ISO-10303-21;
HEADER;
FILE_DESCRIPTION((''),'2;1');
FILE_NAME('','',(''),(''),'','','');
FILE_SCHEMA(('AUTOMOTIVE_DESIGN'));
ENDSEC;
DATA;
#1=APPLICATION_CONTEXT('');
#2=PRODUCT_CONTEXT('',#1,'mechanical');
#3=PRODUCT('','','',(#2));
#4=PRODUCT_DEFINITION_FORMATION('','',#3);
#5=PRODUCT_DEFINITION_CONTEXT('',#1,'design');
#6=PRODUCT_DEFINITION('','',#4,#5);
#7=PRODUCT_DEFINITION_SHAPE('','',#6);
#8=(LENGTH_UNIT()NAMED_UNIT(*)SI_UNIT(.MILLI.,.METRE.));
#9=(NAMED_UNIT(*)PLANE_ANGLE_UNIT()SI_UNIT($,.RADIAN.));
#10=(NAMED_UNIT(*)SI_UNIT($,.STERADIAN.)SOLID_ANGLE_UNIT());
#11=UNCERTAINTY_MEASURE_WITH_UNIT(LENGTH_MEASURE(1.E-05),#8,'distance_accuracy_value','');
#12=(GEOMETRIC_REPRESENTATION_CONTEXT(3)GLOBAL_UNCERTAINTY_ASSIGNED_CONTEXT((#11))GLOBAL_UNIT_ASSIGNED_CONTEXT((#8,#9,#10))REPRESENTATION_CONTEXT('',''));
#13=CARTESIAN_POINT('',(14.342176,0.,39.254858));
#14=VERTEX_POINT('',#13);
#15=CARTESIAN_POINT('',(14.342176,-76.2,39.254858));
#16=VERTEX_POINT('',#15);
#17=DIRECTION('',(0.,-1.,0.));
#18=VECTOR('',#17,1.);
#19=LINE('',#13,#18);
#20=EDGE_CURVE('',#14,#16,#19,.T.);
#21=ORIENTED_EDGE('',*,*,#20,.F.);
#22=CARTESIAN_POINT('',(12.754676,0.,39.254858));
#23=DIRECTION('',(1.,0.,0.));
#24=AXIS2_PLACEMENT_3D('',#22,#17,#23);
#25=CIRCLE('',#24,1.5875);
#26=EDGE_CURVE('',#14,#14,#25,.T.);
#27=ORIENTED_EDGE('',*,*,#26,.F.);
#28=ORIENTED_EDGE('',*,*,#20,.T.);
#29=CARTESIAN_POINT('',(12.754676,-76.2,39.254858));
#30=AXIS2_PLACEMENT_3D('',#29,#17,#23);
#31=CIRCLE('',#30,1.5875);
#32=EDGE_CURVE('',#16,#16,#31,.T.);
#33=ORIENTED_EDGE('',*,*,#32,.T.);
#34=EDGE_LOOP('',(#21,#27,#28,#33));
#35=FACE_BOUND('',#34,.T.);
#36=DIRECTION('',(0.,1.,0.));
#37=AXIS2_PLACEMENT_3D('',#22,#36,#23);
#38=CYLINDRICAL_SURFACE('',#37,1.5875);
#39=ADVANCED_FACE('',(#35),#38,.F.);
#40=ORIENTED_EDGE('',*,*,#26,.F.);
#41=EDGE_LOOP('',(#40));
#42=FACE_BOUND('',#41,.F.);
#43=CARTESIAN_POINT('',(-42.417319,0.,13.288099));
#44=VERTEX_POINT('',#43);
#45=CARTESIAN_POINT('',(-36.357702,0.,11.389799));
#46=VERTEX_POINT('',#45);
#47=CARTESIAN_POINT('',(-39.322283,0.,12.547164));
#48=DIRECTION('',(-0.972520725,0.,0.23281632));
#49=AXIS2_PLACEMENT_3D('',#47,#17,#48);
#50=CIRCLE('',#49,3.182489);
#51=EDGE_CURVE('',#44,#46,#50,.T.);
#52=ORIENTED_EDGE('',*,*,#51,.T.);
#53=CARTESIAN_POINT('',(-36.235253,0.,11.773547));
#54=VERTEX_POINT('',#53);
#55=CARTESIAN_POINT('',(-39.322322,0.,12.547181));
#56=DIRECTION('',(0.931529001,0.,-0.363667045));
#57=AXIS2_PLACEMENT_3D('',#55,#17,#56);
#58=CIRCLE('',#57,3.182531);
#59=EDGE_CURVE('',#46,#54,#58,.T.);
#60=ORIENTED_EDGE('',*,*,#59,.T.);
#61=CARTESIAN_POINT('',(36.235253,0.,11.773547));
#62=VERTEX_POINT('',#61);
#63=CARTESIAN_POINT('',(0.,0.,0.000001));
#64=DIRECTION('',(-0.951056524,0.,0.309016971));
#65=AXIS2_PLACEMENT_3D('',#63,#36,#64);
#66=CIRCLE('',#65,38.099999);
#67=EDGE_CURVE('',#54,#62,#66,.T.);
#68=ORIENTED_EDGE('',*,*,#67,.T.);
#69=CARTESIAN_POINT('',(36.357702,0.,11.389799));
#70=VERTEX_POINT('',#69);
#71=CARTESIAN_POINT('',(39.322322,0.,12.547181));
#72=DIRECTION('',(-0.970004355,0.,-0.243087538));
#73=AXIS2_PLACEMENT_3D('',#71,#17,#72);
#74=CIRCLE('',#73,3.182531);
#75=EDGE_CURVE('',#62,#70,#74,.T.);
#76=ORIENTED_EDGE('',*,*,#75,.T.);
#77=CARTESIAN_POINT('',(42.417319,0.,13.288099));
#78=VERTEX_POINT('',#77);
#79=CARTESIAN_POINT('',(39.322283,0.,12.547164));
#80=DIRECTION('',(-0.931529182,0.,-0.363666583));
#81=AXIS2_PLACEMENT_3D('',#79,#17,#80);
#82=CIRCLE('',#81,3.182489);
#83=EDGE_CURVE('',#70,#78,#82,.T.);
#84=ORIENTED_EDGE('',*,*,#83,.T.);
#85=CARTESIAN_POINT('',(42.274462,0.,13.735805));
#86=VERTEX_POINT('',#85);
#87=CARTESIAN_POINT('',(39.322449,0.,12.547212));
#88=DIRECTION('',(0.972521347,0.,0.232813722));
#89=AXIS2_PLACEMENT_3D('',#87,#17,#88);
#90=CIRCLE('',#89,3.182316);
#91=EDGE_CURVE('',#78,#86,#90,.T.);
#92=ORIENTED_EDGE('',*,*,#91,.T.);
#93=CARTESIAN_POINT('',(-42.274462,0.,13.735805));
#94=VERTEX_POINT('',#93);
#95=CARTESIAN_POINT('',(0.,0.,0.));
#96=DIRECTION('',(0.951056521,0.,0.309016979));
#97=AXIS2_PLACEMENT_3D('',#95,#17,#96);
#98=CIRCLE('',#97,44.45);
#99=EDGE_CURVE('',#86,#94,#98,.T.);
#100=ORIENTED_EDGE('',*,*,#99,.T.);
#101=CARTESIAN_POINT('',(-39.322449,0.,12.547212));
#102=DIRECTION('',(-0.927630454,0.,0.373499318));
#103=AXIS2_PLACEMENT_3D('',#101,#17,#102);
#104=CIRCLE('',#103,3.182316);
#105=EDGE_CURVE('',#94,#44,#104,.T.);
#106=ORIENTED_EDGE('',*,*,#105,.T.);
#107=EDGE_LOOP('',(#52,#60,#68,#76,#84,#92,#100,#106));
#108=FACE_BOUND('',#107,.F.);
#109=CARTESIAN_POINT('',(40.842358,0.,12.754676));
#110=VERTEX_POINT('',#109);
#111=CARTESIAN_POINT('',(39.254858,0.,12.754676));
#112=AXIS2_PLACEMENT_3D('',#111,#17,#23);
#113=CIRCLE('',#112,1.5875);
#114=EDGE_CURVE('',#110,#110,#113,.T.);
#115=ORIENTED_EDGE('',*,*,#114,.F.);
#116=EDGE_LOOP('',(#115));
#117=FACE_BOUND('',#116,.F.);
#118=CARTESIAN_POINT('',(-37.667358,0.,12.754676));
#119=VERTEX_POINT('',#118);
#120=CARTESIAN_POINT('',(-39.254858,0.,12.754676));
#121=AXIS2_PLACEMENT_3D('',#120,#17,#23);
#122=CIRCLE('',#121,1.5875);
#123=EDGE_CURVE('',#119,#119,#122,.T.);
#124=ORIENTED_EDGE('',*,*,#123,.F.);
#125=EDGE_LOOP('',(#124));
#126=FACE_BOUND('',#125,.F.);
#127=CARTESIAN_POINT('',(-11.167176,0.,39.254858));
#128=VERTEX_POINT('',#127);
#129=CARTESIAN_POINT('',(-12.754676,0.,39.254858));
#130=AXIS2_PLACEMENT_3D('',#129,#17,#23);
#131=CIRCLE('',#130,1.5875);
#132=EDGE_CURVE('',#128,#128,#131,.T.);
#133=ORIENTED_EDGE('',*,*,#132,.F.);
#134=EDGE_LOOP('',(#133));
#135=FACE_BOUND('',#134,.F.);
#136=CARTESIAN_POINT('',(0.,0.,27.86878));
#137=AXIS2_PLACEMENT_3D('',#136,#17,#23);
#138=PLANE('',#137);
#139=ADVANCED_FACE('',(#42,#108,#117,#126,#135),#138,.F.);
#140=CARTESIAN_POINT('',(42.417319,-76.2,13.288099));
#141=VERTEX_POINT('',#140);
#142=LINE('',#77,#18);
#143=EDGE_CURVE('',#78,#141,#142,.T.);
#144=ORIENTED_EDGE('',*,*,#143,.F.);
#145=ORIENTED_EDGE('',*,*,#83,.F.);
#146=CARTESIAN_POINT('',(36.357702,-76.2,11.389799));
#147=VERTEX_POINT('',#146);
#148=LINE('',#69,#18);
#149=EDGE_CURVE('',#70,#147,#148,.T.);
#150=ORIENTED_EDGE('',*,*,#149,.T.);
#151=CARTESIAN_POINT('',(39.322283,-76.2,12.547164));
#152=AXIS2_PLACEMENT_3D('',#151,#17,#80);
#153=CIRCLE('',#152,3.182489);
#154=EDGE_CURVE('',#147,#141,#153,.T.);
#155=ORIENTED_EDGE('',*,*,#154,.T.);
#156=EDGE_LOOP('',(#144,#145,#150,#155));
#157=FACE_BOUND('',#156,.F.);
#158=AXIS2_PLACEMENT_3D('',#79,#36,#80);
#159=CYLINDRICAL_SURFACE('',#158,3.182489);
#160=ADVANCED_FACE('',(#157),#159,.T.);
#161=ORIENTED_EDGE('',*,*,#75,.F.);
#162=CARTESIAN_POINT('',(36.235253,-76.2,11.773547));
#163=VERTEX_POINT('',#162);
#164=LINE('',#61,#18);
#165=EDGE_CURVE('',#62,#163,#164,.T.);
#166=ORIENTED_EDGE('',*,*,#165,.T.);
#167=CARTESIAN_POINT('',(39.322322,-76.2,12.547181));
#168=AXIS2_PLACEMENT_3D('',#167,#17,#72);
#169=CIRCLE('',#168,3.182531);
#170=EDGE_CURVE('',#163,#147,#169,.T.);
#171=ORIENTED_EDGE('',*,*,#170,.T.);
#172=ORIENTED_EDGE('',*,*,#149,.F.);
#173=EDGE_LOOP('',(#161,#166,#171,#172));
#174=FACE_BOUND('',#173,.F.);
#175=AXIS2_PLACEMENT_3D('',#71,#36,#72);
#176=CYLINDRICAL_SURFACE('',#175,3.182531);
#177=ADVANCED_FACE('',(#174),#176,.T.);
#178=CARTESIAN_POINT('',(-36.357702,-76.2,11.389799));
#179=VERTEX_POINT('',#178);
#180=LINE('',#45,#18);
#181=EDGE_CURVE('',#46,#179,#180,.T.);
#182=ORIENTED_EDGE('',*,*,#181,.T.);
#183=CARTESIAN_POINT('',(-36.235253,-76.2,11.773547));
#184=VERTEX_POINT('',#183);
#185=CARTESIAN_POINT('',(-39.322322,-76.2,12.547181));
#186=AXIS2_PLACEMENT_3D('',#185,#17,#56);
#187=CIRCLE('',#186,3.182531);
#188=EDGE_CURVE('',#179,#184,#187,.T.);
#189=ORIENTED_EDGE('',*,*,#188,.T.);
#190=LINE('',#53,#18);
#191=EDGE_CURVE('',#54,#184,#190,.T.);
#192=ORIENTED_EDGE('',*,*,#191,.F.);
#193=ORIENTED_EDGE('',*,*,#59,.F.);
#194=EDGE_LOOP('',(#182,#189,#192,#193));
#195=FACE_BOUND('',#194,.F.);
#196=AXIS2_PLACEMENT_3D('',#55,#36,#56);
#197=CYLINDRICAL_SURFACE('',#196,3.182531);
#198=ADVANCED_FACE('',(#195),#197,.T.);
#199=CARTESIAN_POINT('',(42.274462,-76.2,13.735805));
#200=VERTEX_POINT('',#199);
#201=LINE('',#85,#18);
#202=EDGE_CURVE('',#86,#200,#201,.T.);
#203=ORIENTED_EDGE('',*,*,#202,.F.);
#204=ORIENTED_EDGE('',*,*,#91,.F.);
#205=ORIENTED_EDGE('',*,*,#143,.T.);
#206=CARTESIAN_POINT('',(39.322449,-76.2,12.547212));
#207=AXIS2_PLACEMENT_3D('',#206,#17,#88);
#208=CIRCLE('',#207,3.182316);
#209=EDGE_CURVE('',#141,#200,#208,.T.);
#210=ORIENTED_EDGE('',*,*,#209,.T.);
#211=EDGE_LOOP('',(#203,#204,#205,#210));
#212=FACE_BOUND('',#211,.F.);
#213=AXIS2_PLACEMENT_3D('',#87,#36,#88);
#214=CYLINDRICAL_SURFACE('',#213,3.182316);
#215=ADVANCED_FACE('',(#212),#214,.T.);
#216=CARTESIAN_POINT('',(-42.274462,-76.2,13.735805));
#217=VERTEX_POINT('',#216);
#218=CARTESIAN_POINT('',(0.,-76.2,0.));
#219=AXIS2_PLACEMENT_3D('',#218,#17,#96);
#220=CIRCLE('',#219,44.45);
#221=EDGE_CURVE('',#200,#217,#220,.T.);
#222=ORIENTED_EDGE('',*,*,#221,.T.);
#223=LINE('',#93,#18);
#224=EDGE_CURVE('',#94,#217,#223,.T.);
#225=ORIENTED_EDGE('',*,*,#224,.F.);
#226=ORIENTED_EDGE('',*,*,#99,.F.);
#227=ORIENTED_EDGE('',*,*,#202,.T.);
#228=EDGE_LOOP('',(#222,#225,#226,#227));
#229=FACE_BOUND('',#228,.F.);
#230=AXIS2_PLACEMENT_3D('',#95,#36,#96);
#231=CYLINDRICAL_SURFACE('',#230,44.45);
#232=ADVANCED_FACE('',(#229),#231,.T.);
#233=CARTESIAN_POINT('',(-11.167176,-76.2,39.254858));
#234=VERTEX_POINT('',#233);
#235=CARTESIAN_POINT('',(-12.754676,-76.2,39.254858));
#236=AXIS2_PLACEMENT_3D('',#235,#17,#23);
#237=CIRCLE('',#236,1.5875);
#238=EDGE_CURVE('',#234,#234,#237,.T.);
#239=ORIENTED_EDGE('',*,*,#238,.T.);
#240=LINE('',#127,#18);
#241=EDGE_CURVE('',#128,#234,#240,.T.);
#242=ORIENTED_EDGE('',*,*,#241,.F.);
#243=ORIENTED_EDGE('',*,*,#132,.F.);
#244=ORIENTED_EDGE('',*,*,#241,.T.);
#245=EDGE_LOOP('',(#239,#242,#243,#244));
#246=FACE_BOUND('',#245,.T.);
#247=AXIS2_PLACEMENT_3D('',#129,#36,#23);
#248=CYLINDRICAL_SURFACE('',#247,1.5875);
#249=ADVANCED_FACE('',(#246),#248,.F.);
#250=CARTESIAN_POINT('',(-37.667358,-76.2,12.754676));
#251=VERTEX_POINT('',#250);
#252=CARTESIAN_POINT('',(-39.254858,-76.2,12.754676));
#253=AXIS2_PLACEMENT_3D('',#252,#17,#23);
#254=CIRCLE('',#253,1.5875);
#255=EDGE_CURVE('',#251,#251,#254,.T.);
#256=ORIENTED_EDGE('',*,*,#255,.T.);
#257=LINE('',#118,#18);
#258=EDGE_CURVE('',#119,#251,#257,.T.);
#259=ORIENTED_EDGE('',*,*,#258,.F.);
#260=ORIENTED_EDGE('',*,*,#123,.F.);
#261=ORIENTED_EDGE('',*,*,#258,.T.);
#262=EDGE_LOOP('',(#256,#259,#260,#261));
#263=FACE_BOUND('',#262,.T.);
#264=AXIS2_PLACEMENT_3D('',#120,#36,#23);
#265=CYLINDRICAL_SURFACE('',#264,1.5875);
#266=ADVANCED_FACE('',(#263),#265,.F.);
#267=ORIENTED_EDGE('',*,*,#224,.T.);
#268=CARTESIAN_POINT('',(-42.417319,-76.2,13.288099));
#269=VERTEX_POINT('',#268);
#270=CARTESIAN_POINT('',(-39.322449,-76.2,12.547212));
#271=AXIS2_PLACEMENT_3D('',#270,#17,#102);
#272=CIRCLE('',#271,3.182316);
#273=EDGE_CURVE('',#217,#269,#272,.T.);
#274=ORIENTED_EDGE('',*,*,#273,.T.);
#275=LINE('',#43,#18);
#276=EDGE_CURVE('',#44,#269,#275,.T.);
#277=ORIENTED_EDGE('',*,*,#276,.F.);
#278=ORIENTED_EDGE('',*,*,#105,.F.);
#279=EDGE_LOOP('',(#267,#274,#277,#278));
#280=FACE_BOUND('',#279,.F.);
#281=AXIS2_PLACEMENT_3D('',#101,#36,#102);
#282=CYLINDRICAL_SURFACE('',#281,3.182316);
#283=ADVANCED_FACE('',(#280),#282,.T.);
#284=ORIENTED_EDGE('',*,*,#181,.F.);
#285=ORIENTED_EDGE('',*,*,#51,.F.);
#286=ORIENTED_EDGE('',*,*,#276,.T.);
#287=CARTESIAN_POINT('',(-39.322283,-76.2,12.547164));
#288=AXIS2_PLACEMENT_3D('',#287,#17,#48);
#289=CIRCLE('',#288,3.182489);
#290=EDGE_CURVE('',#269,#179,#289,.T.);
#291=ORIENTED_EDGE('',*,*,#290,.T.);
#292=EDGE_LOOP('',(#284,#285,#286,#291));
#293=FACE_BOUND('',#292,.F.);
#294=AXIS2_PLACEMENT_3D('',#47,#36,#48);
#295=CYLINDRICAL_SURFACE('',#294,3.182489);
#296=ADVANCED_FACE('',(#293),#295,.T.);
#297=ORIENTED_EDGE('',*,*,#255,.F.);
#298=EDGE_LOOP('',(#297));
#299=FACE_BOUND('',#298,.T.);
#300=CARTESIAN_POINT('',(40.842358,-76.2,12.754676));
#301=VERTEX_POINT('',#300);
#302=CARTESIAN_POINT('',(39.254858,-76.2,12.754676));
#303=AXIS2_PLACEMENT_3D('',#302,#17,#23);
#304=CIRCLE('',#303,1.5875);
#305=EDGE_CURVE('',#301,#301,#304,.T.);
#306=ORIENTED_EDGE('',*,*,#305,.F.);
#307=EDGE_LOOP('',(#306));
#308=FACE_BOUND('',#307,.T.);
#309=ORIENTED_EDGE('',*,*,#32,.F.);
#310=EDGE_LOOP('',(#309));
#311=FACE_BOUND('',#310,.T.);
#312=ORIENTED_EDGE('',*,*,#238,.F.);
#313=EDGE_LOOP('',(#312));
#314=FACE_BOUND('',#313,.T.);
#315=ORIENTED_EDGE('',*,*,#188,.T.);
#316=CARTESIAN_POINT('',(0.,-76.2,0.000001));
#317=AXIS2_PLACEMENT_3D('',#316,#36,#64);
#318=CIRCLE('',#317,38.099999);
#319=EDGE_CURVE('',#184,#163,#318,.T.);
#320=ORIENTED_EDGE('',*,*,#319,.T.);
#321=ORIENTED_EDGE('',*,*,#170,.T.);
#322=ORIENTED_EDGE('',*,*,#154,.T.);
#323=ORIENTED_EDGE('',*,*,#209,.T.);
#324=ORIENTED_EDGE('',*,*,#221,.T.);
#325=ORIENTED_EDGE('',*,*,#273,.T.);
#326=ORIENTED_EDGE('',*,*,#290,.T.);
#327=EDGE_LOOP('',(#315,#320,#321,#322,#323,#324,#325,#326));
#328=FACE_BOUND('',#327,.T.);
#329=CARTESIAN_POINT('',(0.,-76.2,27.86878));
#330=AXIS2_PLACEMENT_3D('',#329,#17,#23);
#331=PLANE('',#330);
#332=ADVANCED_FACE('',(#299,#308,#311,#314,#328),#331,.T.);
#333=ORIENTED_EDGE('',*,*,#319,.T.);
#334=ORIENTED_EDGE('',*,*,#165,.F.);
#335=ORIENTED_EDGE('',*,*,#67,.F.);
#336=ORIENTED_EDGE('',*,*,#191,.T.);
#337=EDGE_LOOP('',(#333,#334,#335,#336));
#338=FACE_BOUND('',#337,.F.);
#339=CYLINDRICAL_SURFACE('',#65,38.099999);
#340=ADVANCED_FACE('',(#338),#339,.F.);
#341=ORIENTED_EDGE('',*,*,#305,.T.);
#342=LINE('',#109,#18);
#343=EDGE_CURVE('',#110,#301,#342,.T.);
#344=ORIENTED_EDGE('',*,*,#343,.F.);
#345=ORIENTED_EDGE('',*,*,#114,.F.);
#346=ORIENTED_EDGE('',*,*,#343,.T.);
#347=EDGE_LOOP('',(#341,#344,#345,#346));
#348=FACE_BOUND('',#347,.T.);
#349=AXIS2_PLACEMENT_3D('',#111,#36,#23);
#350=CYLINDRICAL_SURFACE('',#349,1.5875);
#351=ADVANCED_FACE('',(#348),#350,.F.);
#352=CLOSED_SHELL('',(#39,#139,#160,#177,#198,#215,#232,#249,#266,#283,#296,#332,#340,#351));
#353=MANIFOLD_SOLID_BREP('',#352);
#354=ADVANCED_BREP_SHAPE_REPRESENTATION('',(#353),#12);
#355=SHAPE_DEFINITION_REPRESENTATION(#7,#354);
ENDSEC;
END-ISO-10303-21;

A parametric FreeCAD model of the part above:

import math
import FreeCAD as App
import Part
import Sketcher
Q = App.Units.Quantity

doc = App.newDocument("Part")
body = doc.addObject("PartDesign::Body", "Body")

sketch1 = body.newObject("Sketcher::SketchObject", "Sketch")
sketch1.AttachmentSupport = (doc.getObject("XZ_Plane"), [""])
sketch1.MapMode = "FlatFace"
sketch1.addGeometry(Part.ArcOfCircle(Part.Circle(App.Vector(39.322283, 12.547164, 0), App.Vector(0, 0, 1), 3.182489), math.radians(-158.674455), math.radians(13.462937)), False)
sketch1.addGeometry(Part.ArcOfCircle(Part.Circle(App.Vector(39.322449, 12.547212, 0), App.Vector(0, 0, 1), 3.182316), math.radians(13.462784), math.radians(21.931592)), False)
sketch1.addGeometry(Part.ArcOfCircle(Part.Circle(App.Vector(0, 0, 0), App.Vector(0, 0, 1), 44.45), math.radians(17.999999), math.radians(162.000001)), False)
sketch1.addGeometry(Part.ArcOfCircle(Part.Circle(App.Vector(-39.322449, 12.547212, 0), App.Vector(0, 0, 1), 3.182316), math.radians(158.068408), math.radians(166.537216)), False)
sketch1.addGeometry(Part.ArcOfCircle(Part.Circle(App.Vector(-39.322283, 12.547164, 0), App.Vector(0, 0, 1), 3.182489), math.radians(166.537063), math.radians(338.674455)), False)
sketch1.addGeometry(Part.ArcOfCircle(Part.Circle(App.Vector(-39.322322, 12.547181, 0), App.Vector(0, 0, 1), 3.182531), math.radians(-21.325573), math.radians(-14.068841)), False)
sketch1.addGeometry(Part.ArcOfCircle(Part.Circle(App.Vector(0, 0.000001, 0), App.Vector(0, 0, 1), 38.099999), math.radians(17.999999), math.radians(162.000001)), False)
sketch1.addGeometry(Part.ArcOfCircle(Part.Circle(App.Vector(39.322322, 12.547181, 0), App.Vector(0, 0, 1), 3.182531), math.radians(-165.931159), math.radians(-158.674427)), False)
sketch1.addGeometry(Part.Circle(App.Vector(-39.254858, 12.754676, 0), App.Vector(0, 0, 1), 1.5875), False)
sketch1.addGeometry(Part.Circle(App.Vector(39.254858, 12.754676, 0), App.Vector(0, 0, 1), 1.5875), False)
sketch1.addGeometry(Part.Circle(App.Vector(-12.754676, 39.254858, 0), App.Vector(0, 0, 1), 1.5875), False)
sketch1.addGeometry(Part.Circle(App.Vector(12.754676, 39.254858, 0), App.Vector(0, 0, 1), 1.5875), False)
sketch1.addConstraint(Sketcher.Constraint("Coincident", 0, 2, 1, 1))
sketch1.addConstraint(Sketcher.Constraint("Coincident", 1, 2, 2, 1))
sketch1.addConstraint(Sketcher.Constraint("Coincident", 2, 2, 3, 1))
sketch1.addConstraint(Sketcher.Constraint("Coincident", 3, 2, 4, 1))
sketch1.addConstraint(Sketcher.Constraint("Tangent", 4, 2, 5, 1))
sketch1.addConstraint(Sketcher.Constraint("Coincident", 5, 2, 6, 2))
sketch1.addConstraint(Sketcher.Constraint("Coincident", 6, 1, 7, 1))
sketch1.addConstraint(Sketcher.Constraint("Tangent", 7, 2, 0, 1))
sketch1.addConstraint(Sketcher.Constraint("Coincident", 2, 3, -1, 1))
sketch1.addConstraint(Sketcher.Constraint("Coincident", 6, 3, -1, 1))
sketch1.addConstraint(Sketcher.Constraint("Equal", 1, 3))
sketch1.addConstraint(Sketcher.Constraint("Equal", 0, 4))
sketch1.addConstraint(Sketcher.Constraint("Equal", 5, 7))
sketch1.addConstraint(Sketcher.Constraint("Equal", 8, 9))
sketch1.addConstraint(Sketcher.Constraint("Equal", 9, 10))
sketch1.addConstraint(Sketcher.Constraint("Equal", 10, 11))
sketch1.addConstraint(Sketcher.Constraint("Symmetric", 1, 3, 3, 3, -2))
sketch1.addConstraint(Sketcher.Constraint("Symmetric", 8, 3, 9, 3, -2))
sketch1.addConstraint(Sketcher.Constraint("Symmetric", 10, 3, 11, 3, -2))
sketch1.addConstraint(Sketcher.Constraint("Symmetric", 4, 2, 7, 2, -2))
sketch1.addConstraint(Sketcher.Constraint("Horizontal", 0, 2, 3, 2))
sketch1.addConstraint(Sketcher.Constraint("Radius", 6, Q("1.5 in")))
sketch1.addConstraint(Sketcher.Constraint("Radius", 2, Q("1.75 in")))
sketch1.addConstraint(Sketcher.Constraint("Diameter", 8, Q("0.125 in")))
sketch1.addConstraint(Sketcher.Constraint("Radius", 0, Q("3.182489 mm")))
sketch1.addConstraint(Sketcher.Constraint("Radius", 5, Q("3.182531 mm")))
sketch1.addConstraint(Sketcher.Constraint("Radius", 1, Q("3.182316 mm")))
sketch1.addConstraint(Sketcher.Constraint("DistanceY", -1, 1, 0, 2, Q("13.288099 mm")))
sketch1.addConstraint(Sketcher.Constraint("DistanceY", -1, 1, 4, 2, Q("11.389799 mm")))
sketch1.addConstraint(Sketcher.Constraint("DistanceX", -1, 1, 7, 2, Q("36.357702 mm")))
sketch1.addConstraint(Sketcher.Constraint("DistanceX", -1, 1, 1, 3, Q("39.322449 mm")))
sketch1.addConstraint(Sketcher.Constraint("DistanceX", 5, 3, -1, 1, Q("39.322322 mm")))
sketch1.addConstraint(Sketcher.Constraint("DistanceX", 3, 3, 8, 3, Q("0.067591 mm")))
sketch1.addConstraint(Sketcher.Constraint("DistanceX", 8, 3, 10, 3, Q("26.500182 mm")))
sketch1.addConstraint(Sketcher.Constraint("DistanceY", 8, 3, 10, 3, Q("26.500182 mm")))
sketch1.addConstraint(Sketcher.Constraint("DistanceY", 0, 2, 11, 3, Q("25.966759 mm")))
pad1 = body.newObject("PartDesign::Pad", "Pad")
pad1.Profile = sketch1
pad1.Length = Q("3 in")

doc.recompute()
